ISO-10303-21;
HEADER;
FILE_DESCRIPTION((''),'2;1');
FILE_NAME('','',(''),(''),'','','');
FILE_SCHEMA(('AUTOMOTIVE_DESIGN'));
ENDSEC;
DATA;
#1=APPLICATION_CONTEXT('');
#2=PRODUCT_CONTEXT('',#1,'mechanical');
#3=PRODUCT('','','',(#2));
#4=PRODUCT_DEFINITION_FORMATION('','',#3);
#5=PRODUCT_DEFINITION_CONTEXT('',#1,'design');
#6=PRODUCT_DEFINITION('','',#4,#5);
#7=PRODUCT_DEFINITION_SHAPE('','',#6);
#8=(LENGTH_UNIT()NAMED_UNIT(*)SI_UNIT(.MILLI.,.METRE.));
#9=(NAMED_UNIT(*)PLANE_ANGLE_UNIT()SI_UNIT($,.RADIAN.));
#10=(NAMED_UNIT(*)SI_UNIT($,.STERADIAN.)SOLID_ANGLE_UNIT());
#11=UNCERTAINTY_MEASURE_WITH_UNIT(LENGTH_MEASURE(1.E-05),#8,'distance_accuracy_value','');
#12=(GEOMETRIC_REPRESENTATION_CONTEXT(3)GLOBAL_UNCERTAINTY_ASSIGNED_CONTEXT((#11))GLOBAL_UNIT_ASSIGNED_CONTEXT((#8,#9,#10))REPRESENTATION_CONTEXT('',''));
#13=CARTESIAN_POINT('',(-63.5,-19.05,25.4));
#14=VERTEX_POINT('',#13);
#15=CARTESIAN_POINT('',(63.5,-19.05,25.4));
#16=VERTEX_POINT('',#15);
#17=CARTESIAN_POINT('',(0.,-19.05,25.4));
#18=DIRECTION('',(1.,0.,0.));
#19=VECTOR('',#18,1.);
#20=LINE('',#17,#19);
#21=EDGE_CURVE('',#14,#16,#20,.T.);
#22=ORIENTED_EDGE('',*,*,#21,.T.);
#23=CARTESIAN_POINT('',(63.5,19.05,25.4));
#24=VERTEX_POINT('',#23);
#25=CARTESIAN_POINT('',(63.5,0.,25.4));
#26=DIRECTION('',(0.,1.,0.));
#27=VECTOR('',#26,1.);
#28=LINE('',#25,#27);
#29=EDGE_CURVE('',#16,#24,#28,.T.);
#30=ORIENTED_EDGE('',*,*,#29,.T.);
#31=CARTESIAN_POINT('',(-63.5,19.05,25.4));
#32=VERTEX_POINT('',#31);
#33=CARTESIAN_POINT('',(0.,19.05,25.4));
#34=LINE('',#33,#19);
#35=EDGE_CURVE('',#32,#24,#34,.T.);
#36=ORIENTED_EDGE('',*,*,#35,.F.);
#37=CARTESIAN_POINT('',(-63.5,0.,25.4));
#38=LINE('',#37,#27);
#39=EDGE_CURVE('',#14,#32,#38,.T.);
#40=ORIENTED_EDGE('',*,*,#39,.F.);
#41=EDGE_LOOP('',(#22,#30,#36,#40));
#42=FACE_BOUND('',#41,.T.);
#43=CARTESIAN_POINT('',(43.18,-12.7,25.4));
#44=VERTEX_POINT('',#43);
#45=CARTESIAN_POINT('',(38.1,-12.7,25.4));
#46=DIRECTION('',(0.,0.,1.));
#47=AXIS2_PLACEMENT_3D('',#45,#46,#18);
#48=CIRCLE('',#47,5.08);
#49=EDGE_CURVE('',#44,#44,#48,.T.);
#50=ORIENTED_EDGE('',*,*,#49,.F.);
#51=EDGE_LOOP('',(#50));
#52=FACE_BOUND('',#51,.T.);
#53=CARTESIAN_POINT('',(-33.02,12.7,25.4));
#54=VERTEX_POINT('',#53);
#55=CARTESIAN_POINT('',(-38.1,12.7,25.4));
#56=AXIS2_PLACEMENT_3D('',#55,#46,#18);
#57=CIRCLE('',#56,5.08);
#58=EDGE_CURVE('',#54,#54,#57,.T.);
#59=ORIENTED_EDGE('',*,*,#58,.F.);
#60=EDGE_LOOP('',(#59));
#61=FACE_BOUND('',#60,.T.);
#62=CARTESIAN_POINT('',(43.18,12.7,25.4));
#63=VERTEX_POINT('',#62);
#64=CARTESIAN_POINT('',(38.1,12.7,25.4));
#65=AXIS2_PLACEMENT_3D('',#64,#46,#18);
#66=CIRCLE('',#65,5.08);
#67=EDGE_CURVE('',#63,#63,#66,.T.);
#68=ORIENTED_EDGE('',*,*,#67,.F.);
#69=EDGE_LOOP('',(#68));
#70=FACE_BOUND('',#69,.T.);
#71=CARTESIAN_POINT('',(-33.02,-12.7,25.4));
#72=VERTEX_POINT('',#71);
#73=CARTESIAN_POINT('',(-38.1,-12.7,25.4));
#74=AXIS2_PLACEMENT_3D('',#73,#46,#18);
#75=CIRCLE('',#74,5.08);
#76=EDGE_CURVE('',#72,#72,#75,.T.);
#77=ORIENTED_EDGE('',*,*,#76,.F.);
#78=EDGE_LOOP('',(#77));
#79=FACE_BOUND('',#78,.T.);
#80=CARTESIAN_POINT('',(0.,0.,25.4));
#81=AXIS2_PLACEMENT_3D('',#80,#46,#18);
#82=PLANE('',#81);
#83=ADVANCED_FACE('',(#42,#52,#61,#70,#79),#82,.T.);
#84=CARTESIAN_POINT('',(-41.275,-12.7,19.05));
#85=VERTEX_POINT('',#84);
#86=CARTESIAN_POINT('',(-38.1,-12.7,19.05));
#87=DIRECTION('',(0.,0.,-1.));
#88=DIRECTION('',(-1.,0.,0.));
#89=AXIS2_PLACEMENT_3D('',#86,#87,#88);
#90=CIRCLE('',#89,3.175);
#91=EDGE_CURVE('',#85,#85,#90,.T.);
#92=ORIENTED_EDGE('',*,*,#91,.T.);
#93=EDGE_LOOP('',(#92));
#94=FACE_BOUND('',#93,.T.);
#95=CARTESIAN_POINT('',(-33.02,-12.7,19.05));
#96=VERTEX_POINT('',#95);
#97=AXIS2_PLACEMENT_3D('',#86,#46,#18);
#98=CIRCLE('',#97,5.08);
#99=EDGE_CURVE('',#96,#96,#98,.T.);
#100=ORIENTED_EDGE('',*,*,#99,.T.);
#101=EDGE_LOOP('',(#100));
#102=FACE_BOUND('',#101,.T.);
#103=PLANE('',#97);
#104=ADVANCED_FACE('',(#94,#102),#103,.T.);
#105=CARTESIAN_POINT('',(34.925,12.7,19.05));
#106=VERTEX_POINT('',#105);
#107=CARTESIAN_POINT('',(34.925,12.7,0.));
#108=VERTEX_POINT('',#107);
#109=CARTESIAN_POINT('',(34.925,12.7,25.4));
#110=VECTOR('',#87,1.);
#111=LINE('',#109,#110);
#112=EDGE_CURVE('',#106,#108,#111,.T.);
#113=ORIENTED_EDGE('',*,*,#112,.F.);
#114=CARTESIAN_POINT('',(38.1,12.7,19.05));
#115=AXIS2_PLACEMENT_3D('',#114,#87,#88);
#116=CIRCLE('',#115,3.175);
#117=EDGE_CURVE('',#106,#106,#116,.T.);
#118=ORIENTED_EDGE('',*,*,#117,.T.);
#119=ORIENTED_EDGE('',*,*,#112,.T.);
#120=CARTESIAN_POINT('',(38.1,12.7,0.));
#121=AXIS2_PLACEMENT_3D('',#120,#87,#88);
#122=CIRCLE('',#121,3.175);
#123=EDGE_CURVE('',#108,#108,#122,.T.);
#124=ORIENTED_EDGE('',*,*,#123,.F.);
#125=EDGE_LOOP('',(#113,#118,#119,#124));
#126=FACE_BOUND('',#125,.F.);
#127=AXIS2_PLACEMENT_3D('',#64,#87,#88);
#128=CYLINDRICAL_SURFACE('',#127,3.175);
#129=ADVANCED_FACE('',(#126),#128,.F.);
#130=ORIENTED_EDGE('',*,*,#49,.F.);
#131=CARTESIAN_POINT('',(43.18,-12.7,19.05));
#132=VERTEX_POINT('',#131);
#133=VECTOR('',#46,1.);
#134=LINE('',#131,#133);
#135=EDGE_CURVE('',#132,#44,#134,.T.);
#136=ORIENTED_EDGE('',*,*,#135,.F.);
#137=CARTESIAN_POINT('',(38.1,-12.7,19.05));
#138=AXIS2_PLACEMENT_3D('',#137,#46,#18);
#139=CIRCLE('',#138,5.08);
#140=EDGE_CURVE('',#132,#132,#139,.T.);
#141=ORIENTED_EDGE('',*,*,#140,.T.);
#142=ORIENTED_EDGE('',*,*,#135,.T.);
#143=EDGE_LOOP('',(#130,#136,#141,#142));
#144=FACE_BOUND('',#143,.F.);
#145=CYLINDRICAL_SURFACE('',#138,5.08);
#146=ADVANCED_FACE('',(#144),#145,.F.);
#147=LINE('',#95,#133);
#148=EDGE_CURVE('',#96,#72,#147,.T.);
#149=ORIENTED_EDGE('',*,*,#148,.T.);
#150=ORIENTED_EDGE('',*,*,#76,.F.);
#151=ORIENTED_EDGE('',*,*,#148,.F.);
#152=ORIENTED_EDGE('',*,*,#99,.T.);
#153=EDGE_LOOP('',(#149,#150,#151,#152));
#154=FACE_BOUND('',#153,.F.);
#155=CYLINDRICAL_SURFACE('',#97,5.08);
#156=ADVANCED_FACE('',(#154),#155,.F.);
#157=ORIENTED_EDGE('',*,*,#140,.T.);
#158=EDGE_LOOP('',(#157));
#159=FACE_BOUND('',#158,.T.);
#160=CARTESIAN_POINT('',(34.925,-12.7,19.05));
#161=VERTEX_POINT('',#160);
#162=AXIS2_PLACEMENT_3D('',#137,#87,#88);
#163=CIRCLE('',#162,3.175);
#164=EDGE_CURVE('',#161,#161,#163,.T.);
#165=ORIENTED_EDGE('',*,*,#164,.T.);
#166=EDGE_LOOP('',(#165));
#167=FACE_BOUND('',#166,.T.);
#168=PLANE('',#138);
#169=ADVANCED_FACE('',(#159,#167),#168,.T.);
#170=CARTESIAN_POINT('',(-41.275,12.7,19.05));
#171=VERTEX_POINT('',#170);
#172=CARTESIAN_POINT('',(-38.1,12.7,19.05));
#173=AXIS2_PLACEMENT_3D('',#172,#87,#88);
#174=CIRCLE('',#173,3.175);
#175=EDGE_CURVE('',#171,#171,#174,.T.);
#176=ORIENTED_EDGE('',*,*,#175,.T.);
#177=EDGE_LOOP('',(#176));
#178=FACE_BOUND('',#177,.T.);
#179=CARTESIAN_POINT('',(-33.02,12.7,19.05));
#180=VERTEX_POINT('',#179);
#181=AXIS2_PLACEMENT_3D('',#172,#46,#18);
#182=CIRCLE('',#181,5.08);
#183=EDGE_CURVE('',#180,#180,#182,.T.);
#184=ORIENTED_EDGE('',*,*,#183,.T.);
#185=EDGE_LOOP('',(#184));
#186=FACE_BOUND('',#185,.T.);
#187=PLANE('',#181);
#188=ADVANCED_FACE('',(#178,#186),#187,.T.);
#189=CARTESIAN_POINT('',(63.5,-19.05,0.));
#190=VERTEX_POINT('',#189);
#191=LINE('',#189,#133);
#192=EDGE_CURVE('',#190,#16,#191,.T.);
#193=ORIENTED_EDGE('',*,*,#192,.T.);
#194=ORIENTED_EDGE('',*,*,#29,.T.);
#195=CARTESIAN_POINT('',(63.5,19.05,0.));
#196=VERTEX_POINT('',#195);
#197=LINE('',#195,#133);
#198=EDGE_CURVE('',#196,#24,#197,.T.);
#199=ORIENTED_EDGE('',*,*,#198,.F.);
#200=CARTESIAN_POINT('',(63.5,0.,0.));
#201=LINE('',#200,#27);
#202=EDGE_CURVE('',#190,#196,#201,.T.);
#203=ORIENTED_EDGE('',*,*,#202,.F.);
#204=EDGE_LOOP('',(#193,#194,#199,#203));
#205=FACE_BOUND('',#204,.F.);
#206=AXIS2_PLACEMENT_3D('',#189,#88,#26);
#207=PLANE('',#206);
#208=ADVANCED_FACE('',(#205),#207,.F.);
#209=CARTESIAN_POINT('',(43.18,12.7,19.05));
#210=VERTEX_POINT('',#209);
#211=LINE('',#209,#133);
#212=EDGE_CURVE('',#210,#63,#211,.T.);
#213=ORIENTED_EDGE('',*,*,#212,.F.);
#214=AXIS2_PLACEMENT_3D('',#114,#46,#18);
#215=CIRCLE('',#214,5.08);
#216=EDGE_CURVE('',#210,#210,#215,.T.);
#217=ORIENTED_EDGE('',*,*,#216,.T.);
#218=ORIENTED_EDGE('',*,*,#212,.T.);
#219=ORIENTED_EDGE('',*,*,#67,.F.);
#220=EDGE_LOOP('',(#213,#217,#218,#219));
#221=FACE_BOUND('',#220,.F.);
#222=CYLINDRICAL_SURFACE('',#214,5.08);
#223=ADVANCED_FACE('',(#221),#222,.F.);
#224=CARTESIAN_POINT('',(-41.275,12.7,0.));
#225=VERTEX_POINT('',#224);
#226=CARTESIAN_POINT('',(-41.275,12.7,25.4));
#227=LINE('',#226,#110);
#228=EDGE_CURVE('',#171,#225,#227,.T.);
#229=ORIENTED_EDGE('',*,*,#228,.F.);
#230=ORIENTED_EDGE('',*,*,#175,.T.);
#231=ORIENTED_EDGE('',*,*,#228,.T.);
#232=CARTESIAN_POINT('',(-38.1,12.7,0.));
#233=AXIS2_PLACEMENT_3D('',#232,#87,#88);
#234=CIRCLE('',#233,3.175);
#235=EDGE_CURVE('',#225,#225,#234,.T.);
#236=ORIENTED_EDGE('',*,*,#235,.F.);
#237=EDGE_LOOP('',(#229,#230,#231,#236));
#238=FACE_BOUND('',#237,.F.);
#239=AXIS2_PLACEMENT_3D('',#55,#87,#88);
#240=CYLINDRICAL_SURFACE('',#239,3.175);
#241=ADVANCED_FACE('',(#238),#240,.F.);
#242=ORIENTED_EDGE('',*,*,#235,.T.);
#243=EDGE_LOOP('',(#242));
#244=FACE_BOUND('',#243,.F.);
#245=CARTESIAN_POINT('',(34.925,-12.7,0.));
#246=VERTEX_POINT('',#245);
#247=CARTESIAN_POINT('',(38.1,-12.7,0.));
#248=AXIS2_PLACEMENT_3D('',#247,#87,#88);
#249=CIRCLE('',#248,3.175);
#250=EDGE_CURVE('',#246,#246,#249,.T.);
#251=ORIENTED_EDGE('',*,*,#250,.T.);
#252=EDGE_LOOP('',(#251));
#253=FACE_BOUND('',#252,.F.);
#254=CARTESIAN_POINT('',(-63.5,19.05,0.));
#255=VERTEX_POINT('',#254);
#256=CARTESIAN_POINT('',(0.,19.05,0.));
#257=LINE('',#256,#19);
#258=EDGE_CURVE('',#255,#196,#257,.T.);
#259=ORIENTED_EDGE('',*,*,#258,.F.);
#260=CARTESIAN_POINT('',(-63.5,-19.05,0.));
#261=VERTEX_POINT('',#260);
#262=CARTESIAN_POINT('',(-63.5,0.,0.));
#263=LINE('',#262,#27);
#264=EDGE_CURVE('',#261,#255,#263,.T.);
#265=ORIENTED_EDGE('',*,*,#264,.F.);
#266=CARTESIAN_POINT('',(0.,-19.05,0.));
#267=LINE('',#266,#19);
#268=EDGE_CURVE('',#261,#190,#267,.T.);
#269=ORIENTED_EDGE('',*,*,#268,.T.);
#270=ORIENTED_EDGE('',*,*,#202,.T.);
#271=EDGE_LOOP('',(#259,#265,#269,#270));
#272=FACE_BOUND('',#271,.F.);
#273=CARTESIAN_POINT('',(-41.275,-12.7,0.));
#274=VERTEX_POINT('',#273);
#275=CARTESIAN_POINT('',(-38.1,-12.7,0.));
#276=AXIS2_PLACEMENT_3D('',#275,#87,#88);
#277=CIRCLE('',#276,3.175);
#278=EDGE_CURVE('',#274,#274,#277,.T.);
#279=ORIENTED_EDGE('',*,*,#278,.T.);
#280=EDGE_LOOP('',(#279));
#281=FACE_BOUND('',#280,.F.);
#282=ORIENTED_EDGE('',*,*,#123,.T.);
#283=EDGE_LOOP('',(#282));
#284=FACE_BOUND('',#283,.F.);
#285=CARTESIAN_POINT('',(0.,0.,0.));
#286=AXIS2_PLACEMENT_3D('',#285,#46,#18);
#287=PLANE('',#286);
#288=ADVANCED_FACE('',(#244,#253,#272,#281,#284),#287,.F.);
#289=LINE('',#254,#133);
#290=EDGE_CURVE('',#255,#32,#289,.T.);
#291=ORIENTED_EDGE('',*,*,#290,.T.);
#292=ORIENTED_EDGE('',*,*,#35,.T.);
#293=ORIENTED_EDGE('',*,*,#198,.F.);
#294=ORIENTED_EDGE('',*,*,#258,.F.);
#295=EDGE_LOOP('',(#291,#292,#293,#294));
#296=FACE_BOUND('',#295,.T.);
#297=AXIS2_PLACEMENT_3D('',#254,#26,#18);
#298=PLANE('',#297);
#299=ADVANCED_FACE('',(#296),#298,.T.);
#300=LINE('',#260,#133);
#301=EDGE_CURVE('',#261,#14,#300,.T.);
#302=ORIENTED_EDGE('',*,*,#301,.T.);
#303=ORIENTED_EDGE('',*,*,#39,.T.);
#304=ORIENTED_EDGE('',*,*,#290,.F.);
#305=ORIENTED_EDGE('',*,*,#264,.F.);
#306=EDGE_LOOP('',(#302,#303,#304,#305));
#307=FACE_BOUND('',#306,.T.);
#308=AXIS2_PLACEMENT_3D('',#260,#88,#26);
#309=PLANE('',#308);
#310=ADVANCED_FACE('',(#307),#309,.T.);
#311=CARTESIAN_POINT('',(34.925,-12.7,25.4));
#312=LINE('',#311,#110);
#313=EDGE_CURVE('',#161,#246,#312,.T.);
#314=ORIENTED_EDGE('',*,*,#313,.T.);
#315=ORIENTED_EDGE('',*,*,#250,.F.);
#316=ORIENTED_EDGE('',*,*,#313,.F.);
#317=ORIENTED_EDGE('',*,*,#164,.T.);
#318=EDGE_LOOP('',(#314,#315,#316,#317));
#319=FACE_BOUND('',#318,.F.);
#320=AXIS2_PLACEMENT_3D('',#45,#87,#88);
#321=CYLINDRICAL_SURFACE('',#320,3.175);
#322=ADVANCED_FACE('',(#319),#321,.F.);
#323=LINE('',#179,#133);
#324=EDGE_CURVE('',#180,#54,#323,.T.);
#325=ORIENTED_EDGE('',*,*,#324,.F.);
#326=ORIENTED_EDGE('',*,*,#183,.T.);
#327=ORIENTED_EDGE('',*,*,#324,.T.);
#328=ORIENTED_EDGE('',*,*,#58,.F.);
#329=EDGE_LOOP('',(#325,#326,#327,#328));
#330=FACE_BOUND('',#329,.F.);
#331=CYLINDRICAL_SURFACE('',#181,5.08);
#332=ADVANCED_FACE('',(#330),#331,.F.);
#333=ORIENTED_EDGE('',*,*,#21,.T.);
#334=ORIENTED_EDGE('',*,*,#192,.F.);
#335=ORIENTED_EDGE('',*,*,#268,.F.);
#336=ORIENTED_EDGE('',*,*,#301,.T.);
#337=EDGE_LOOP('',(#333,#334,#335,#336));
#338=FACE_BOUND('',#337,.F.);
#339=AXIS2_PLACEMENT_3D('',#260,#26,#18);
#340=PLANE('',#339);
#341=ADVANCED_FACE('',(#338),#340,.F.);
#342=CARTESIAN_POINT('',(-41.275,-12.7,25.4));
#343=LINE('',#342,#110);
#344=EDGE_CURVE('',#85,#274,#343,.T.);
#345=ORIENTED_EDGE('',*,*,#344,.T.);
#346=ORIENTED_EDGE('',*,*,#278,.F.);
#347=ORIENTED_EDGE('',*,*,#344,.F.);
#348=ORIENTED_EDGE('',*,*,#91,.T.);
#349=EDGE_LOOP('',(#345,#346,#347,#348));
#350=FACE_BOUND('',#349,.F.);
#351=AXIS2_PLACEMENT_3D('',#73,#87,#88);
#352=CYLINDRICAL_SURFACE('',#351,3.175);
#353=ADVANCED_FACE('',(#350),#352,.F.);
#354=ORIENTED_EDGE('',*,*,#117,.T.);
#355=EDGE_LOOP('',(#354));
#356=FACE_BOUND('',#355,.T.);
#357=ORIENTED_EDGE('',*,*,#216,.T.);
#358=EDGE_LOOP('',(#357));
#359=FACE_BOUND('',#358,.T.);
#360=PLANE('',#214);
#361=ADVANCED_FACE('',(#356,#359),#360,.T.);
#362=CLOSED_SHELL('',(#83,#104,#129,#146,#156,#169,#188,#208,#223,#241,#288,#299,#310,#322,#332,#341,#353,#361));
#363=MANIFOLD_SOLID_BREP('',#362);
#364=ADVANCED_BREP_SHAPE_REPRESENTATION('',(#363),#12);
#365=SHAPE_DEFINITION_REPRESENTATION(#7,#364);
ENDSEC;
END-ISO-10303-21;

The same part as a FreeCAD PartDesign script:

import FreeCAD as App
import Part
import Sketcher

V = App.Vector
Q = App.Units.Quantity


def add_polygon(sketch, points):
    """Adds a closed chain of lines whose ends are joined by coincident constraints."""
    first, n = sketch.GeometryCount, len(points)
    for a, b in zip(points, points[1:] + points[:1]):
        sketch.addGeometry(Part.LineSegment(App.Vector(*a, 0), App.Vector(*b, 0)), False)
    for i in range(n):
        sketch.addConstraint(Sketcher.Constraint("Coincident", first + i, 2, first + (i + 1) % n, 1))

doc = App.newDocument("Part")
params = doc.addObject("Spreadsheet::Sheet", "Params")
for row, (alias, value) in enumerate([
    ("sketch1_width", "5 in"),
    ("sketch1_height", "1.5 in"),
    ("pad1_length", "1 in"),
    ("sketch2_diameter", "0.25 in"),
    ("hole_diameter", "0.25 in"),
    ("hole_cbore_diameter", "0.4 in"),
    ("hole_cbore_depth", "0.25 in"),
], start=1):
    params.set(f"A{row}", alias)
    params.set(f"B{row}", "=" + value)
    params.setAlias(f"B{row}", alias)

body = doc.addObject("PartDesign::Body", "Body")

# Sketch on XY plane
sketch1 = doc.addObject("Sketcher::SketchObject", "Sketch")
body.addObject(sketch1)
sketch1.AttachmentSupport = (doc.XY_Plane, [""])
sketch1.MapMode = "FlatFace"
add_polygon(sketch1, [(-63.5, 19.05), (-63.5, -19.05), (63.5, -19.05), (63.5, 19.05)])  # lines 0-3
sketch1.addConstraint([
    Sketcher.Constraint("Vertical", 0),
    Sketcher.Constraint("Horizontal", 1),
    Sketcher.Constraint("Vertical", 2),
    Sketcher.Constraint("Horizontal", 3),
    Sketcher.Constraint("Symmetric", 0, 2, 2, 2, -1, 1),
    Sketcher.Constraint("DistanceX", 1, 1, 1, 2, Q("5 in")),
    Sketcher.Constraint("DistanceY", 0, 2, 0, 1, Q("1.5 in")),
])
sketch1.setExpression("Constraints[9]", "Params.sketch1_width")
sketch1.setExpression("Constraints[10]", "Params.sketch1_height")
pad1 = doc.addObject("PartDesign::Pad", "Pad")
body.addObject(pad1)
pad1.Profile = sketch1
pad1.setExpression("Length", "Params.pad1_length")

# Sketch on XY plane
sketch2 = doc.addObject("Sketcher::SketchObject", "Sketch001")
body.addObject(sketch2)
sketch2.AttachmentSupport = (doc.XY_Plane, [""])
sketch2.MapMode = "FlatFace"
sketch2.AttachmentOffset = App.Placement(V(0, 0, 1 * 25.4), App.Rotation())
sketch2.addGeometry([
    Part.Circle(V(-38.1, 12.7, 0), V(0, 0, 1), 3.175),
    Part.Circle(V(-38.1, -12.7, 0), V(0, 0, 1), 3.175),
    Part.Circle(V(38.1, -12.7, 0), V(0, 0, 1), 3.175),
    Part.Circle(V(38.1, 12.7, 0), V(0, 0, 1), 3.175),
], False)
sketch2.addConstraint([
    Sketcher.Constraint("Equal", 0, 1),
    Sketcher.Constraint("Equal", 1, 2),
    Sketcher.Constraint("Equal", 2, 3),
    Sketcher.Constraint("Symmetric", 0, 3, 2, 3, -1, 1),
    Sketcher.Constraint("Symmetric", 1, 3, 3, 3, -1, 1),
    Sketcher.Constraint("Symmetric", 1, 3, 2, 3, -2),
    Sketcher.Constraint("Diameter", 0, Q("0.25 in")),
    Sketcher.Constraint("DistanceY", 1, 3, 0, 3, Q("1 in")),
    Sketcher.Constraint("DistanceX", 1, 3, 2, 3, Q("3 in")),
])
sketch2.setExpression("Constraints[6]", "Params.sketch2_diameter")
doc.recompute()
hole = doc.addObject("PartDesign::Hole", "Hole")
body.addObject(hole)
hole.Profile = sketch2
hole.ThreadType = "None"
hole.setExpression("Diameter", "Params.hole_diameter")
hole.DepthType = "ThroughAll"
hole.HoleCutType = "Counterbore"
hole.setExpression("HoleCutDiameter", "Params.hole_cbore_diameter")
hole.setExpression("HoleCutDepth", "Params.hole_cbore_depth")

doc.recompute()
